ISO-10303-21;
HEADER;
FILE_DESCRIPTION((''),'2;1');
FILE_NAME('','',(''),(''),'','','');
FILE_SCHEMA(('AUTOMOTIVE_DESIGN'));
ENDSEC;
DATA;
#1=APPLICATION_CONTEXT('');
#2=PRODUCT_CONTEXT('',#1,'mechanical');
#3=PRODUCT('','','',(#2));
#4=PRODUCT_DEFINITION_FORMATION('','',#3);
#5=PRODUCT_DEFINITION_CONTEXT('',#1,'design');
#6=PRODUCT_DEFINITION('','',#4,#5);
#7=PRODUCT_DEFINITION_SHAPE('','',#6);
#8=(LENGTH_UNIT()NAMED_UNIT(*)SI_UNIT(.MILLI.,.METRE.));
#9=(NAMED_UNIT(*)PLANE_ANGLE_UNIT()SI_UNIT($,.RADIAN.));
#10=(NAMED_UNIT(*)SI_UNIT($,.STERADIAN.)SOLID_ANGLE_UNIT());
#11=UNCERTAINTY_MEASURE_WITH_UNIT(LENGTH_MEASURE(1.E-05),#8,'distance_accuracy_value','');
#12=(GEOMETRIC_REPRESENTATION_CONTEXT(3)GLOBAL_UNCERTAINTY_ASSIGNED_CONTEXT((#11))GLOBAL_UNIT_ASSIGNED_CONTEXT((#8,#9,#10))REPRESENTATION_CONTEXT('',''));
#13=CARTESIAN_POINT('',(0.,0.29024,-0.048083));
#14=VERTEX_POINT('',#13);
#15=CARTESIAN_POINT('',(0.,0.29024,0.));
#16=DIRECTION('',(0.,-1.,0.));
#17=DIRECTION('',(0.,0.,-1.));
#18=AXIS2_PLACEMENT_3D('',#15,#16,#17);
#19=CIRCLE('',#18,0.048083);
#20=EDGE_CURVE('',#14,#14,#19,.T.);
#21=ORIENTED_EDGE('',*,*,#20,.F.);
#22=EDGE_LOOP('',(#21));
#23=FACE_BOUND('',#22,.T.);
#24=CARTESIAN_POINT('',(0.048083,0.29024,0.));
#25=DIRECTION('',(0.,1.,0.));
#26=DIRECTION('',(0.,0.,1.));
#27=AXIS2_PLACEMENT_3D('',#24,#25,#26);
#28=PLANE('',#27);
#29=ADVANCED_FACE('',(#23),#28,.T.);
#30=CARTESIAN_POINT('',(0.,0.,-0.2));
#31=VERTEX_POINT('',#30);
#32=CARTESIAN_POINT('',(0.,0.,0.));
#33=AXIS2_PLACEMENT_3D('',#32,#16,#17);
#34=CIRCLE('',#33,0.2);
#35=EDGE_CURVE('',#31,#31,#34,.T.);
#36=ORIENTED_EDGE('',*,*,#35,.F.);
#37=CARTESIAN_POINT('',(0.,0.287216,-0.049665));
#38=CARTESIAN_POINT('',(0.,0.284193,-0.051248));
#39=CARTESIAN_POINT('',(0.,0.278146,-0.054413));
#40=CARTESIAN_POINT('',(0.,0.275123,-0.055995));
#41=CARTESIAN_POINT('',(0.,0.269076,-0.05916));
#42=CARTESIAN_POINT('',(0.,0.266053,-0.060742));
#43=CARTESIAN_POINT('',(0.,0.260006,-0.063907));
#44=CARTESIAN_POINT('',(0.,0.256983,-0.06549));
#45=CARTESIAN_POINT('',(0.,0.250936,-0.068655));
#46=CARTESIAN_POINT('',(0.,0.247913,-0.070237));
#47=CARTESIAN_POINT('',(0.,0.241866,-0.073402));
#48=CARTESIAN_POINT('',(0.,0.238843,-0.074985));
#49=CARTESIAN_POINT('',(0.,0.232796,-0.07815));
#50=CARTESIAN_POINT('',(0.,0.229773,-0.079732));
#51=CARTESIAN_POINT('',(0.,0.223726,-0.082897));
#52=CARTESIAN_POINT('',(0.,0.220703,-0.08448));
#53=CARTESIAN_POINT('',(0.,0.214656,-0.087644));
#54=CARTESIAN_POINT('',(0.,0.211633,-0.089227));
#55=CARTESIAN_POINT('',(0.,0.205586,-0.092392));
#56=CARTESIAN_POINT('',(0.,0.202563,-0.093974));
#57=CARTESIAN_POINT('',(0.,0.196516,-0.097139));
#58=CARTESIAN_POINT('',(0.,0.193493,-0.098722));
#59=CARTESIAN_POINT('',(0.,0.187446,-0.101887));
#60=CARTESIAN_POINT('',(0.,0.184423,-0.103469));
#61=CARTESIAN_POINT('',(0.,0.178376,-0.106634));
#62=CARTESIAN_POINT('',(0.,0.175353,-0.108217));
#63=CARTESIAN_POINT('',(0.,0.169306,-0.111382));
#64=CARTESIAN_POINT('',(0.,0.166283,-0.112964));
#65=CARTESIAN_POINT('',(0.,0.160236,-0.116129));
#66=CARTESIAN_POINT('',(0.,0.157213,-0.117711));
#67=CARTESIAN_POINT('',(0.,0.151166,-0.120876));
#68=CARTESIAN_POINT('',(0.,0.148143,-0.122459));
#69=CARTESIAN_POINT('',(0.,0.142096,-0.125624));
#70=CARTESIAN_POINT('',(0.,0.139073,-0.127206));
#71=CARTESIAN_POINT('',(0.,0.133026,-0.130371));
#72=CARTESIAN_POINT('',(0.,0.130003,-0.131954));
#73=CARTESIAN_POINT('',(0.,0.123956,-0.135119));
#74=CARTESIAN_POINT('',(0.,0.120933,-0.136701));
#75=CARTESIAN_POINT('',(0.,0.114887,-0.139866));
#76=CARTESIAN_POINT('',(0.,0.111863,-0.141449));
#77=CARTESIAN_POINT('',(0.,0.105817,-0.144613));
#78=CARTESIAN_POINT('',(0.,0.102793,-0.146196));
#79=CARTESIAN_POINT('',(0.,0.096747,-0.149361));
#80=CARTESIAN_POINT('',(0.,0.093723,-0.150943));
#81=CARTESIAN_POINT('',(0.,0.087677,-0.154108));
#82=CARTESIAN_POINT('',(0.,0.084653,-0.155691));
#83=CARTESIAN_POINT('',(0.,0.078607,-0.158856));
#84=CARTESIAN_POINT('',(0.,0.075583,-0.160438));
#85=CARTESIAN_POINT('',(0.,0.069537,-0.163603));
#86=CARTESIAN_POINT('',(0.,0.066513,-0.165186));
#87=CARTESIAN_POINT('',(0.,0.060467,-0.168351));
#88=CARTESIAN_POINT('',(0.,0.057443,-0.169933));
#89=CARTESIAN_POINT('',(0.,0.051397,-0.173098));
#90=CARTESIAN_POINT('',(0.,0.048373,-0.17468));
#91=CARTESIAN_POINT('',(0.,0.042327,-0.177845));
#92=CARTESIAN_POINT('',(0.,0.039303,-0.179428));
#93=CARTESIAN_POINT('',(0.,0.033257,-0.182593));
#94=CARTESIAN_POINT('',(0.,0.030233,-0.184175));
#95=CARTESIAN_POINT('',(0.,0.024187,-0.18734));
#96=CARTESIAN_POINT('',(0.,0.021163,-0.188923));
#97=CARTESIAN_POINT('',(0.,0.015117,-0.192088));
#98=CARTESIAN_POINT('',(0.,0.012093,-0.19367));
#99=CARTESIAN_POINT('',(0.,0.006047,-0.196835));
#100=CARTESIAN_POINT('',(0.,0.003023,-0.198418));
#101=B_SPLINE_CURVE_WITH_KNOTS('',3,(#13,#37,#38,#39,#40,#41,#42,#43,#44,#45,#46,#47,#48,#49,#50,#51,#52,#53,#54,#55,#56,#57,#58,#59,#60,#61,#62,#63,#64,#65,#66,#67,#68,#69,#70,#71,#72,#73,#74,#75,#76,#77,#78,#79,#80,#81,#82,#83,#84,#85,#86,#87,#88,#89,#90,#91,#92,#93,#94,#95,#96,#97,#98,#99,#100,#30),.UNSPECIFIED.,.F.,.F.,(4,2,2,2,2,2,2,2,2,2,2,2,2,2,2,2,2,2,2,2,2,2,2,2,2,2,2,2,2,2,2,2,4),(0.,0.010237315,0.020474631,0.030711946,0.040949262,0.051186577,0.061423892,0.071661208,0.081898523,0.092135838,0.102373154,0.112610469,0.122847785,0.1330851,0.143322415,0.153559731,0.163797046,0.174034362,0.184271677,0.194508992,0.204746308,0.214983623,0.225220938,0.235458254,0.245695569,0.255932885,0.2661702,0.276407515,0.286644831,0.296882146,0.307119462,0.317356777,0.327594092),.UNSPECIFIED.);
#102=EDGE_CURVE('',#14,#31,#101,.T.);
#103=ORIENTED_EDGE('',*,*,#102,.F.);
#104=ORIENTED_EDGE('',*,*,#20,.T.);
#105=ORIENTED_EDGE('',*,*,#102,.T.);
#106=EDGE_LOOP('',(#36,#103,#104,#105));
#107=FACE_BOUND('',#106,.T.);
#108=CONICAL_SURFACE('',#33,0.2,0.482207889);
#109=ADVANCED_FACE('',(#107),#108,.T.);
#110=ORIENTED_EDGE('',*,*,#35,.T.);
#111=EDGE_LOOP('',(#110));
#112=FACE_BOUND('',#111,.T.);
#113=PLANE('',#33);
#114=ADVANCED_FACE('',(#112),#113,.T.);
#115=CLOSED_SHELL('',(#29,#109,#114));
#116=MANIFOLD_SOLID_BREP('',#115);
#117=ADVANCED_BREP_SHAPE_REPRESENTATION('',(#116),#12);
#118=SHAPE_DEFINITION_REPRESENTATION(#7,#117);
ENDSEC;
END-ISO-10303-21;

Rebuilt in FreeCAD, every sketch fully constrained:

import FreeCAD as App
import Part
import Sketcher
from FreeCAD import Vector

doc = App.newDocument("Part")
body = doc.addObject("PartDesign::Body", "Body")

# Sketch on XY plane
sketch1 = body.newObject("Sketcher::SketchObject", "Sketch")
sketch1.AttachmentSupport = (doc.getObject("XY_Plane"), [""])
sketch1.MapMode = "FlatFace"
sketch1.addGeometry(Part.LineSegment(Vector(0, 0, 0), Vector(0.2, 0, 0)), False)
sketch1.addGeometry(Part.LineSegment(Vector(0.2, 0, 0), Vector(0.048, 0.29, 0)), False)
sketch1.addGeometry(Part.LineSegment(Vector(0.048, 0.29, 0), Vector(0, 0.29, 0)), False)
sketch1.addGeometry(Part.LineSegment(Vector(0, 0.29, 0), Vector(0, 0, 0)), False)
sketch1.addConstraint(Sketcher.Constraint("Coincident", 0, 2, 1, 1))
sketch1.addConstraint(Sketcher.Constraint("Coincident", 1, 2, 2, 1))
sketch1.addConstraint(Sketcher.Constraint("Coincident", 2, 2, 3, 1))
sketch1.addConstraint(Sketcher.Constraint("Coincident", 3, 2, 0, 1))
sketch1.addConstraint(Sketcher.Constraint("Horizontal", 0))
sketch1.addConstraint(Sketcher.Constraint("Horizontal", 2))
sketch1.addConstraint(Sketcher.Constraint("Vertical", 3))
sketch1.addConstraint(Sketcher.Constraint("Coincident", 3, 2, -1, 1))
sketch1.addConstraint(Sketcher.Constraint("DistanceX", 0, 1, 0, 2, 0.2))
sketch1.addConstraint(Sketcher.Constraint("DistanceY", 3, 2, 3, 1, 0.29024))
sketch1.addConstraint(Sketcher.Constraint("DistanceX", 2, 2, 2, 1, 0.048083))
revolution = body.newObject("PartDesign::Revolution", "Revolution")
revolution.Profile = sketch1
revolution.ReferenceAxis = (sketch1, ["V_Axis"])
revolution.Angle = 360

doc.recompute()
